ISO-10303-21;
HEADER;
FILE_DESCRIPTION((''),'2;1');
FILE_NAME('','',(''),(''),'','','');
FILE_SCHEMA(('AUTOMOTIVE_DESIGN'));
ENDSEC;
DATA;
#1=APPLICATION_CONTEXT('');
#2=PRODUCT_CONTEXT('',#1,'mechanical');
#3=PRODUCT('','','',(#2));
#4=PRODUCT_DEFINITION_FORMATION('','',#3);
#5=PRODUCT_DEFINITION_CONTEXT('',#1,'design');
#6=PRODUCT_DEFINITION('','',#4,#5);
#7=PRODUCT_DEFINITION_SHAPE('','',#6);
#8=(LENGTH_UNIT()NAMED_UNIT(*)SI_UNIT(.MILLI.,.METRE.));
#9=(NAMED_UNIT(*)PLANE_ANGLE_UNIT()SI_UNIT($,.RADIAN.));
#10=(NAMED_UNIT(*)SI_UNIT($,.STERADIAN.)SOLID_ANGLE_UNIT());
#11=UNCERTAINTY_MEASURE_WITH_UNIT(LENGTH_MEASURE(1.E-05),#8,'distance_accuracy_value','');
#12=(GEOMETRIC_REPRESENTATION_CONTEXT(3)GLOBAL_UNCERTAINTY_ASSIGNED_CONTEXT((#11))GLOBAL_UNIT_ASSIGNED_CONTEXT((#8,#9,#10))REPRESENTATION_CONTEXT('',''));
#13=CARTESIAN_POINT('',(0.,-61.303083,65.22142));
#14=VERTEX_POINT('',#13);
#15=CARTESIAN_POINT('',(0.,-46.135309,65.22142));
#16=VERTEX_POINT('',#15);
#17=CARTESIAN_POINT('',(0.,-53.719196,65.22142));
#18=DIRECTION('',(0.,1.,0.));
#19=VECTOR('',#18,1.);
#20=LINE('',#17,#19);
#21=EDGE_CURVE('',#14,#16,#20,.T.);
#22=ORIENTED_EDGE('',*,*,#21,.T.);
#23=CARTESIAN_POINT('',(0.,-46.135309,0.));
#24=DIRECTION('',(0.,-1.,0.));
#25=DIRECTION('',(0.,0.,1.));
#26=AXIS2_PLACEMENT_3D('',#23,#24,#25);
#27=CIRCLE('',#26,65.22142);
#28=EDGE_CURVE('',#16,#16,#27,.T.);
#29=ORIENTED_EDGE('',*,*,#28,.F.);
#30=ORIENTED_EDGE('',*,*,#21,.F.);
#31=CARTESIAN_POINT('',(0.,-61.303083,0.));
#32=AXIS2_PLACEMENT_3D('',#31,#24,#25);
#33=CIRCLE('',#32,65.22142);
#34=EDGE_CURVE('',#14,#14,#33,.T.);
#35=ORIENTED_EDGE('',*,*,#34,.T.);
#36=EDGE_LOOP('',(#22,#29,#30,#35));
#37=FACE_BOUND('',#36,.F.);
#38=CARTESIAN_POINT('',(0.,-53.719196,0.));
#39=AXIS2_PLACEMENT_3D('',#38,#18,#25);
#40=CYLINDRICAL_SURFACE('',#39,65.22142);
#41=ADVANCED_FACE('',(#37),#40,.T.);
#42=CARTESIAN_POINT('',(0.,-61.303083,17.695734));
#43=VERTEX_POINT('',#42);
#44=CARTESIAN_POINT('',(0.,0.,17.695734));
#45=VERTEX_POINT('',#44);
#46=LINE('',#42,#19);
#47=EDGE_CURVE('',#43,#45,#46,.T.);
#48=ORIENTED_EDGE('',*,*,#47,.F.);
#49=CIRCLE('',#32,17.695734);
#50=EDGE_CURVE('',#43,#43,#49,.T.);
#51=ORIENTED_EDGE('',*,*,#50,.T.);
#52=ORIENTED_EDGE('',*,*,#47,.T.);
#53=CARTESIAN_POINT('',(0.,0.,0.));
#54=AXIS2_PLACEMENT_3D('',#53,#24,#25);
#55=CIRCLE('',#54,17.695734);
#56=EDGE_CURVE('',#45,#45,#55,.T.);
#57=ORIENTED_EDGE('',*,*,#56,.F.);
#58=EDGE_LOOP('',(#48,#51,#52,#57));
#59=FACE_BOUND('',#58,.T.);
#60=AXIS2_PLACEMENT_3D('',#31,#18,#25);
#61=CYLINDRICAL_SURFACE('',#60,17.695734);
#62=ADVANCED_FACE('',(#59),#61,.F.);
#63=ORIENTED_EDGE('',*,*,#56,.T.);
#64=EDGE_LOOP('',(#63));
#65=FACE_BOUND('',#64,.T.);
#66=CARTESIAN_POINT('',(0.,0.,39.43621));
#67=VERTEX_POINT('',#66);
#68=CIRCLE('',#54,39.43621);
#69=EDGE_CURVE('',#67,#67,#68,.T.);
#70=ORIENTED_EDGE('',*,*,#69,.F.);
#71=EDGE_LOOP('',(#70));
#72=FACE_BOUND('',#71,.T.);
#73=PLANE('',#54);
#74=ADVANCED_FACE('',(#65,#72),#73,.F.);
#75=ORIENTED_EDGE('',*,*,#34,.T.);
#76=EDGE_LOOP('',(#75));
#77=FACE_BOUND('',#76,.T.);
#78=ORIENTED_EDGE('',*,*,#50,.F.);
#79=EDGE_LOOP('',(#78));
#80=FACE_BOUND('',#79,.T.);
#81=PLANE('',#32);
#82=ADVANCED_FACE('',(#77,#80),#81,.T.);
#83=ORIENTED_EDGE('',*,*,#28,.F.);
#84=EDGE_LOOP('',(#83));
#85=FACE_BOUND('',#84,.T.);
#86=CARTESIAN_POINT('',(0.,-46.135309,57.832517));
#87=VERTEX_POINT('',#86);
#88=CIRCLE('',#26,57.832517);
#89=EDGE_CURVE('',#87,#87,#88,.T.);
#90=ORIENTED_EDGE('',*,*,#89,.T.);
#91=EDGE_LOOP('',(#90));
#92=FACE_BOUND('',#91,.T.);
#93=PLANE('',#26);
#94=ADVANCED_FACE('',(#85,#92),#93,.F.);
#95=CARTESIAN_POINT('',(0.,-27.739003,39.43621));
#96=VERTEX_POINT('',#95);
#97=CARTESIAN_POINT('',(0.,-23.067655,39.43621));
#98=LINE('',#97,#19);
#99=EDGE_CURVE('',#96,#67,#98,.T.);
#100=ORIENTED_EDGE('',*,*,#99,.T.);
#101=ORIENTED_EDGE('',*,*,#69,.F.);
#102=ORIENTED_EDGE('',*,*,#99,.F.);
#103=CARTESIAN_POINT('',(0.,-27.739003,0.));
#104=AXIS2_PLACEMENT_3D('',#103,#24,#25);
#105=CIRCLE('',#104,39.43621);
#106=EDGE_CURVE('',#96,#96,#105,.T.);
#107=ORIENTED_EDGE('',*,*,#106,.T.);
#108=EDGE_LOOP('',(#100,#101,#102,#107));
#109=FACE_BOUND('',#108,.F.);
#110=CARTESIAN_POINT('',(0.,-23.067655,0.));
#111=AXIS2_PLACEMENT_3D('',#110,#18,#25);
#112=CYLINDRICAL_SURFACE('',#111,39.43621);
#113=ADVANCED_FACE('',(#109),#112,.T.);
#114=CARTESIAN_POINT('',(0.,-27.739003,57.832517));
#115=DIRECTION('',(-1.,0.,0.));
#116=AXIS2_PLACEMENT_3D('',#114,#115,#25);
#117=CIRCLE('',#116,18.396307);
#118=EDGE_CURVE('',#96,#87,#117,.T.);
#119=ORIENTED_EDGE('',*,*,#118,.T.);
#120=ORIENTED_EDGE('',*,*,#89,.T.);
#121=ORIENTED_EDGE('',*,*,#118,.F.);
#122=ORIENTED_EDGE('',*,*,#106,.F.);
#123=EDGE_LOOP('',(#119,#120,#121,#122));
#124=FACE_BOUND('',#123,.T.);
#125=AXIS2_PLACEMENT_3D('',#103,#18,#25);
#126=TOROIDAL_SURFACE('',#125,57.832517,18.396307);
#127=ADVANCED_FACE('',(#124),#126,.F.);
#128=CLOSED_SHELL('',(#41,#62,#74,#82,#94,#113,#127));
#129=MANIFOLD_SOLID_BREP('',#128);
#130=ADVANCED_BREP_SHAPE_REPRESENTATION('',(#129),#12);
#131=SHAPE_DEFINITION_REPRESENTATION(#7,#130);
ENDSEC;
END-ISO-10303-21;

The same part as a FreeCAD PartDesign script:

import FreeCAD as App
import Part
import Sketcher

V = App.Vector
Q = App.Units.Quantity


def edges_at(feature, points):
    """Names of the edges that pass closest to the given points."""
    edges = feature.Shape.Edges
    near = lambda p: min(range(len(edges)), key=lambda i: edges[i].distToShape(Part.Vertex(*p))[0])
    return sorted({f"Edge{near(p) + 1}" for p in points})


def add_polygon(sketch, points):
    """Adds a closed chain of lines whose ends are joined by coincident constraints."""
    first, n = sketch.GeometryCount, len(points)
    for a, b in zip(points, points[1:] + points[:1]):
        sketch.addGeometry(Part.LineSegment(App.Vector(*a, 0), App.Vector(*b, 0)), False)
    for i in range(n):
        sketch.addConstraint(Sketcher.Constraint("Coincident", first + i, 2, first + (i + 1) % n, 1))

doc = App.newDocument("Part")
body = doc.addObject("PartDesign::Body", "Body")

# Sketch on YZ plane
sketch1 = body.newObject("Sketcher::SketchObject", "Sketch")
sketch1.AttachmentSupport = (doc.getObject("YZ_Plane"), [""])
sketch1.MapMode = "FlatFace"
add_polygon(sketch1, [(-61, 65), (-61, 18), (0, 18), (0, 39), (-46, 39), (-46, 65)])  # lines 0-5
sketch1.addConstraint([
    Sketcher.Constraint("Vertical", 0),
    Sketcher.Constraint("Horizontal", 1),
    Sketcher.Constraint("Vertical", 2),
    Sketcher.Constraint("Horizontal", 3),
    Sketcher.Constraint("Vertical", 4),
    Sketcher.Constraint("Horizontal", 5),
    Sketcher.Constraint("PointOnObject", 1, 2, -2),
    Sketcher.Constraint("DistanceX", 3, 2, 3, 1, Q("46.135309 mm")),
    Sketcher.Constraint("DistanceY", 4, 1, 4, 2, Q("25.78521 mm")),
    Sketcher.Constraint("DistanceX", 1, 1, 1, 2, Q("61.303083 mm")),
    Sketcher.Constraint("DistanceY", 0, 2, 0, 1, Q("47.525686 mm")),
    Sketcher.Constraint("DistanceY", -1, 1, 2, 2, Q("39.43621 mm")),
])
revolution = body.newObject("PartDesign::Revolution", "Revolution")
revolution.Profile = sketch1
revolution.ReferenceAxis = (sketch1, ["H_Axis"])
revolution.Angle = 360
doc.recompute()

fillet = body.newObject("PartDesign::Fillet", "Fillet")
fillet.Base = (revolution, edges_at(revolution, [(0, -46.135, -39.436)]))
fillet.Radius = 18.396307

doc.recompute()
